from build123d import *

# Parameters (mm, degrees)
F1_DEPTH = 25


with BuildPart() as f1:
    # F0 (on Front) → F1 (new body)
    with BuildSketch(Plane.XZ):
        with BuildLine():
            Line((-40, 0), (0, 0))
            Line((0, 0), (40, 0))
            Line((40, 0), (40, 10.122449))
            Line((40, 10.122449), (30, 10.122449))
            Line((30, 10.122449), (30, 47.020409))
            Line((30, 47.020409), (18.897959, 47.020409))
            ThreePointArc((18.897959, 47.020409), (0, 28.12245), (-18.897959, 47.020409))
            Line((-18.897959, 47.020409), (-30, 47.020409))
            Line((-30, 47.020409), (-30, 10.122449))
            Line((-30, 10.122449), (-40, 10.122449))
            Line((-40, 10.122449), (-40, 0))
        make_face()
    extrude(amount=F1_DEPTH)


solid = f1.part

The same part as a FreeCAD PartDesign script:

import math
import FreeCAD as App
import Part
import Sketcher
from FreeCAD import Vector

doc = App.newDocument("Part")
body = doc.addObject("PartDesign::Body", "Body")

sketch1 = body.newObject("Sketcher::SketchObject", "Sketch")
sketch1.AttachmentSupport = (doc.getObject("XZ_Plane"), [""])
sketch1.MapMode = "FlatFace"
sketch1.addGeometry([
    Part.LineSegment(Vector(-40, 0, 0), Vector(40, 0, 0)),
    Part.LineSegment(Vector(40, 0, 0), Vector(40, 10.122449, 0)),
    Part.LineSegment(Vector(40, 10.122449, 0), Vector(30, 10.122449, 0)),
    Part.LineSegment(Vector(30, 10.122449, 0), Vector(30, 47.020409, 0)),
    Part.LineSegment(Vector(30, 47.020409, 0), Vector(18.897959, 47.020409, 0)),
    Part.ArcOfCircle(Part.Circle(Vector(0, 47.020409, 0), Vector(0, 0, 1), 18.897959), math.radians(180), math.radians(360)),
    Part.LineSegment(Vector(-18.897959, 47.020409, 0), Vector(-30, 47.020409, 0)),
    Part.LineSegment(Vector(-30, 47.020409, 0), Vector(-30, 10.122449, 0)),
    Part.LineSegment(Vector(-30, 10.122449, 0), Vector(-40, 10.122449, 0)),
    Part.LineSegment(Vector(-40, 10.122449, 0), Vector(-40, 0, 0)),
], False)
sketch1.addConstraint([
    Sketcher.Constraint("Coincident", 0, 2, 1, 1),
    Sketcher.Constraint("Coincident", 1, 2, 2, 1),
    Sketcher.Constraint("Coincident", 2, 2, 3, 1),
    Sketcher.Constraint("Coincident", 3, 2, 4, 1),
    Sketcher.Constraint("Coincident", 4, 2, 5, 2),
    Sketcher.Constraint("Coincident", 5, 1, 6, 1),
    Sketcher.Constraint("Coincident", 6, 2, 7, 1),
    Sketcher.Constraint("Coincident", 7, 2, 8, 1),
    Sketcher.Constraint("Coincident", 8, 2, 9, 1),
    Sketcher.Constraint("Coincident", 9, 2, 0, 1),
    Sketcher.Constraint("Horizontal", 0),
    Sketcher.Constraint("Vertical", 1),
    Sketcher.Constraint("Horizontal", 2),
    Sketcher.Constraint("Vertical", 3),
    Sketcher.Constraint("Horizontal", 4),
    Sketcher.Constraint("Horizontal", 6),
    Sketcher.Constraint("Vertical", 7),
    Sketcher.Constraint("Horizontal", 8),
    Sketcher.Constraint("Vertical", 9),
    Sketcher.Constraint("Symmetric", 0, 2, 9, 2, -1, 1),
    Sketcher.Constraint("Symmetric", 4, 2, 5, 1, -2),
    Sketcher.Constraint("Symmetric", 2, 2, 7, 2, -2),
    Sketcher.Constraint("Horizontal", 5, 3, 3, 2),
    Sketcher.Constraint("DistanceX", 0, 1, 0, 2, 80.0),
    Sketcher.Constraint("DistanceX", 2, 2, 2, 1, 10.0),
    Sketcher.Constraint("Radius", 5, 18.897959),
    Sketcher.Constraint("DistanceY", 1, 1, 1, 2, 10.122449),
    Sketcher.Constraint("DistanceY", 3, 1, 3, 2, 36.89796),
])
pad1 = body.newObject("PartDesign::Pad", "Pad")
pad1.Profile = sketch1
pad1.Length = 25

doc.recompute()
